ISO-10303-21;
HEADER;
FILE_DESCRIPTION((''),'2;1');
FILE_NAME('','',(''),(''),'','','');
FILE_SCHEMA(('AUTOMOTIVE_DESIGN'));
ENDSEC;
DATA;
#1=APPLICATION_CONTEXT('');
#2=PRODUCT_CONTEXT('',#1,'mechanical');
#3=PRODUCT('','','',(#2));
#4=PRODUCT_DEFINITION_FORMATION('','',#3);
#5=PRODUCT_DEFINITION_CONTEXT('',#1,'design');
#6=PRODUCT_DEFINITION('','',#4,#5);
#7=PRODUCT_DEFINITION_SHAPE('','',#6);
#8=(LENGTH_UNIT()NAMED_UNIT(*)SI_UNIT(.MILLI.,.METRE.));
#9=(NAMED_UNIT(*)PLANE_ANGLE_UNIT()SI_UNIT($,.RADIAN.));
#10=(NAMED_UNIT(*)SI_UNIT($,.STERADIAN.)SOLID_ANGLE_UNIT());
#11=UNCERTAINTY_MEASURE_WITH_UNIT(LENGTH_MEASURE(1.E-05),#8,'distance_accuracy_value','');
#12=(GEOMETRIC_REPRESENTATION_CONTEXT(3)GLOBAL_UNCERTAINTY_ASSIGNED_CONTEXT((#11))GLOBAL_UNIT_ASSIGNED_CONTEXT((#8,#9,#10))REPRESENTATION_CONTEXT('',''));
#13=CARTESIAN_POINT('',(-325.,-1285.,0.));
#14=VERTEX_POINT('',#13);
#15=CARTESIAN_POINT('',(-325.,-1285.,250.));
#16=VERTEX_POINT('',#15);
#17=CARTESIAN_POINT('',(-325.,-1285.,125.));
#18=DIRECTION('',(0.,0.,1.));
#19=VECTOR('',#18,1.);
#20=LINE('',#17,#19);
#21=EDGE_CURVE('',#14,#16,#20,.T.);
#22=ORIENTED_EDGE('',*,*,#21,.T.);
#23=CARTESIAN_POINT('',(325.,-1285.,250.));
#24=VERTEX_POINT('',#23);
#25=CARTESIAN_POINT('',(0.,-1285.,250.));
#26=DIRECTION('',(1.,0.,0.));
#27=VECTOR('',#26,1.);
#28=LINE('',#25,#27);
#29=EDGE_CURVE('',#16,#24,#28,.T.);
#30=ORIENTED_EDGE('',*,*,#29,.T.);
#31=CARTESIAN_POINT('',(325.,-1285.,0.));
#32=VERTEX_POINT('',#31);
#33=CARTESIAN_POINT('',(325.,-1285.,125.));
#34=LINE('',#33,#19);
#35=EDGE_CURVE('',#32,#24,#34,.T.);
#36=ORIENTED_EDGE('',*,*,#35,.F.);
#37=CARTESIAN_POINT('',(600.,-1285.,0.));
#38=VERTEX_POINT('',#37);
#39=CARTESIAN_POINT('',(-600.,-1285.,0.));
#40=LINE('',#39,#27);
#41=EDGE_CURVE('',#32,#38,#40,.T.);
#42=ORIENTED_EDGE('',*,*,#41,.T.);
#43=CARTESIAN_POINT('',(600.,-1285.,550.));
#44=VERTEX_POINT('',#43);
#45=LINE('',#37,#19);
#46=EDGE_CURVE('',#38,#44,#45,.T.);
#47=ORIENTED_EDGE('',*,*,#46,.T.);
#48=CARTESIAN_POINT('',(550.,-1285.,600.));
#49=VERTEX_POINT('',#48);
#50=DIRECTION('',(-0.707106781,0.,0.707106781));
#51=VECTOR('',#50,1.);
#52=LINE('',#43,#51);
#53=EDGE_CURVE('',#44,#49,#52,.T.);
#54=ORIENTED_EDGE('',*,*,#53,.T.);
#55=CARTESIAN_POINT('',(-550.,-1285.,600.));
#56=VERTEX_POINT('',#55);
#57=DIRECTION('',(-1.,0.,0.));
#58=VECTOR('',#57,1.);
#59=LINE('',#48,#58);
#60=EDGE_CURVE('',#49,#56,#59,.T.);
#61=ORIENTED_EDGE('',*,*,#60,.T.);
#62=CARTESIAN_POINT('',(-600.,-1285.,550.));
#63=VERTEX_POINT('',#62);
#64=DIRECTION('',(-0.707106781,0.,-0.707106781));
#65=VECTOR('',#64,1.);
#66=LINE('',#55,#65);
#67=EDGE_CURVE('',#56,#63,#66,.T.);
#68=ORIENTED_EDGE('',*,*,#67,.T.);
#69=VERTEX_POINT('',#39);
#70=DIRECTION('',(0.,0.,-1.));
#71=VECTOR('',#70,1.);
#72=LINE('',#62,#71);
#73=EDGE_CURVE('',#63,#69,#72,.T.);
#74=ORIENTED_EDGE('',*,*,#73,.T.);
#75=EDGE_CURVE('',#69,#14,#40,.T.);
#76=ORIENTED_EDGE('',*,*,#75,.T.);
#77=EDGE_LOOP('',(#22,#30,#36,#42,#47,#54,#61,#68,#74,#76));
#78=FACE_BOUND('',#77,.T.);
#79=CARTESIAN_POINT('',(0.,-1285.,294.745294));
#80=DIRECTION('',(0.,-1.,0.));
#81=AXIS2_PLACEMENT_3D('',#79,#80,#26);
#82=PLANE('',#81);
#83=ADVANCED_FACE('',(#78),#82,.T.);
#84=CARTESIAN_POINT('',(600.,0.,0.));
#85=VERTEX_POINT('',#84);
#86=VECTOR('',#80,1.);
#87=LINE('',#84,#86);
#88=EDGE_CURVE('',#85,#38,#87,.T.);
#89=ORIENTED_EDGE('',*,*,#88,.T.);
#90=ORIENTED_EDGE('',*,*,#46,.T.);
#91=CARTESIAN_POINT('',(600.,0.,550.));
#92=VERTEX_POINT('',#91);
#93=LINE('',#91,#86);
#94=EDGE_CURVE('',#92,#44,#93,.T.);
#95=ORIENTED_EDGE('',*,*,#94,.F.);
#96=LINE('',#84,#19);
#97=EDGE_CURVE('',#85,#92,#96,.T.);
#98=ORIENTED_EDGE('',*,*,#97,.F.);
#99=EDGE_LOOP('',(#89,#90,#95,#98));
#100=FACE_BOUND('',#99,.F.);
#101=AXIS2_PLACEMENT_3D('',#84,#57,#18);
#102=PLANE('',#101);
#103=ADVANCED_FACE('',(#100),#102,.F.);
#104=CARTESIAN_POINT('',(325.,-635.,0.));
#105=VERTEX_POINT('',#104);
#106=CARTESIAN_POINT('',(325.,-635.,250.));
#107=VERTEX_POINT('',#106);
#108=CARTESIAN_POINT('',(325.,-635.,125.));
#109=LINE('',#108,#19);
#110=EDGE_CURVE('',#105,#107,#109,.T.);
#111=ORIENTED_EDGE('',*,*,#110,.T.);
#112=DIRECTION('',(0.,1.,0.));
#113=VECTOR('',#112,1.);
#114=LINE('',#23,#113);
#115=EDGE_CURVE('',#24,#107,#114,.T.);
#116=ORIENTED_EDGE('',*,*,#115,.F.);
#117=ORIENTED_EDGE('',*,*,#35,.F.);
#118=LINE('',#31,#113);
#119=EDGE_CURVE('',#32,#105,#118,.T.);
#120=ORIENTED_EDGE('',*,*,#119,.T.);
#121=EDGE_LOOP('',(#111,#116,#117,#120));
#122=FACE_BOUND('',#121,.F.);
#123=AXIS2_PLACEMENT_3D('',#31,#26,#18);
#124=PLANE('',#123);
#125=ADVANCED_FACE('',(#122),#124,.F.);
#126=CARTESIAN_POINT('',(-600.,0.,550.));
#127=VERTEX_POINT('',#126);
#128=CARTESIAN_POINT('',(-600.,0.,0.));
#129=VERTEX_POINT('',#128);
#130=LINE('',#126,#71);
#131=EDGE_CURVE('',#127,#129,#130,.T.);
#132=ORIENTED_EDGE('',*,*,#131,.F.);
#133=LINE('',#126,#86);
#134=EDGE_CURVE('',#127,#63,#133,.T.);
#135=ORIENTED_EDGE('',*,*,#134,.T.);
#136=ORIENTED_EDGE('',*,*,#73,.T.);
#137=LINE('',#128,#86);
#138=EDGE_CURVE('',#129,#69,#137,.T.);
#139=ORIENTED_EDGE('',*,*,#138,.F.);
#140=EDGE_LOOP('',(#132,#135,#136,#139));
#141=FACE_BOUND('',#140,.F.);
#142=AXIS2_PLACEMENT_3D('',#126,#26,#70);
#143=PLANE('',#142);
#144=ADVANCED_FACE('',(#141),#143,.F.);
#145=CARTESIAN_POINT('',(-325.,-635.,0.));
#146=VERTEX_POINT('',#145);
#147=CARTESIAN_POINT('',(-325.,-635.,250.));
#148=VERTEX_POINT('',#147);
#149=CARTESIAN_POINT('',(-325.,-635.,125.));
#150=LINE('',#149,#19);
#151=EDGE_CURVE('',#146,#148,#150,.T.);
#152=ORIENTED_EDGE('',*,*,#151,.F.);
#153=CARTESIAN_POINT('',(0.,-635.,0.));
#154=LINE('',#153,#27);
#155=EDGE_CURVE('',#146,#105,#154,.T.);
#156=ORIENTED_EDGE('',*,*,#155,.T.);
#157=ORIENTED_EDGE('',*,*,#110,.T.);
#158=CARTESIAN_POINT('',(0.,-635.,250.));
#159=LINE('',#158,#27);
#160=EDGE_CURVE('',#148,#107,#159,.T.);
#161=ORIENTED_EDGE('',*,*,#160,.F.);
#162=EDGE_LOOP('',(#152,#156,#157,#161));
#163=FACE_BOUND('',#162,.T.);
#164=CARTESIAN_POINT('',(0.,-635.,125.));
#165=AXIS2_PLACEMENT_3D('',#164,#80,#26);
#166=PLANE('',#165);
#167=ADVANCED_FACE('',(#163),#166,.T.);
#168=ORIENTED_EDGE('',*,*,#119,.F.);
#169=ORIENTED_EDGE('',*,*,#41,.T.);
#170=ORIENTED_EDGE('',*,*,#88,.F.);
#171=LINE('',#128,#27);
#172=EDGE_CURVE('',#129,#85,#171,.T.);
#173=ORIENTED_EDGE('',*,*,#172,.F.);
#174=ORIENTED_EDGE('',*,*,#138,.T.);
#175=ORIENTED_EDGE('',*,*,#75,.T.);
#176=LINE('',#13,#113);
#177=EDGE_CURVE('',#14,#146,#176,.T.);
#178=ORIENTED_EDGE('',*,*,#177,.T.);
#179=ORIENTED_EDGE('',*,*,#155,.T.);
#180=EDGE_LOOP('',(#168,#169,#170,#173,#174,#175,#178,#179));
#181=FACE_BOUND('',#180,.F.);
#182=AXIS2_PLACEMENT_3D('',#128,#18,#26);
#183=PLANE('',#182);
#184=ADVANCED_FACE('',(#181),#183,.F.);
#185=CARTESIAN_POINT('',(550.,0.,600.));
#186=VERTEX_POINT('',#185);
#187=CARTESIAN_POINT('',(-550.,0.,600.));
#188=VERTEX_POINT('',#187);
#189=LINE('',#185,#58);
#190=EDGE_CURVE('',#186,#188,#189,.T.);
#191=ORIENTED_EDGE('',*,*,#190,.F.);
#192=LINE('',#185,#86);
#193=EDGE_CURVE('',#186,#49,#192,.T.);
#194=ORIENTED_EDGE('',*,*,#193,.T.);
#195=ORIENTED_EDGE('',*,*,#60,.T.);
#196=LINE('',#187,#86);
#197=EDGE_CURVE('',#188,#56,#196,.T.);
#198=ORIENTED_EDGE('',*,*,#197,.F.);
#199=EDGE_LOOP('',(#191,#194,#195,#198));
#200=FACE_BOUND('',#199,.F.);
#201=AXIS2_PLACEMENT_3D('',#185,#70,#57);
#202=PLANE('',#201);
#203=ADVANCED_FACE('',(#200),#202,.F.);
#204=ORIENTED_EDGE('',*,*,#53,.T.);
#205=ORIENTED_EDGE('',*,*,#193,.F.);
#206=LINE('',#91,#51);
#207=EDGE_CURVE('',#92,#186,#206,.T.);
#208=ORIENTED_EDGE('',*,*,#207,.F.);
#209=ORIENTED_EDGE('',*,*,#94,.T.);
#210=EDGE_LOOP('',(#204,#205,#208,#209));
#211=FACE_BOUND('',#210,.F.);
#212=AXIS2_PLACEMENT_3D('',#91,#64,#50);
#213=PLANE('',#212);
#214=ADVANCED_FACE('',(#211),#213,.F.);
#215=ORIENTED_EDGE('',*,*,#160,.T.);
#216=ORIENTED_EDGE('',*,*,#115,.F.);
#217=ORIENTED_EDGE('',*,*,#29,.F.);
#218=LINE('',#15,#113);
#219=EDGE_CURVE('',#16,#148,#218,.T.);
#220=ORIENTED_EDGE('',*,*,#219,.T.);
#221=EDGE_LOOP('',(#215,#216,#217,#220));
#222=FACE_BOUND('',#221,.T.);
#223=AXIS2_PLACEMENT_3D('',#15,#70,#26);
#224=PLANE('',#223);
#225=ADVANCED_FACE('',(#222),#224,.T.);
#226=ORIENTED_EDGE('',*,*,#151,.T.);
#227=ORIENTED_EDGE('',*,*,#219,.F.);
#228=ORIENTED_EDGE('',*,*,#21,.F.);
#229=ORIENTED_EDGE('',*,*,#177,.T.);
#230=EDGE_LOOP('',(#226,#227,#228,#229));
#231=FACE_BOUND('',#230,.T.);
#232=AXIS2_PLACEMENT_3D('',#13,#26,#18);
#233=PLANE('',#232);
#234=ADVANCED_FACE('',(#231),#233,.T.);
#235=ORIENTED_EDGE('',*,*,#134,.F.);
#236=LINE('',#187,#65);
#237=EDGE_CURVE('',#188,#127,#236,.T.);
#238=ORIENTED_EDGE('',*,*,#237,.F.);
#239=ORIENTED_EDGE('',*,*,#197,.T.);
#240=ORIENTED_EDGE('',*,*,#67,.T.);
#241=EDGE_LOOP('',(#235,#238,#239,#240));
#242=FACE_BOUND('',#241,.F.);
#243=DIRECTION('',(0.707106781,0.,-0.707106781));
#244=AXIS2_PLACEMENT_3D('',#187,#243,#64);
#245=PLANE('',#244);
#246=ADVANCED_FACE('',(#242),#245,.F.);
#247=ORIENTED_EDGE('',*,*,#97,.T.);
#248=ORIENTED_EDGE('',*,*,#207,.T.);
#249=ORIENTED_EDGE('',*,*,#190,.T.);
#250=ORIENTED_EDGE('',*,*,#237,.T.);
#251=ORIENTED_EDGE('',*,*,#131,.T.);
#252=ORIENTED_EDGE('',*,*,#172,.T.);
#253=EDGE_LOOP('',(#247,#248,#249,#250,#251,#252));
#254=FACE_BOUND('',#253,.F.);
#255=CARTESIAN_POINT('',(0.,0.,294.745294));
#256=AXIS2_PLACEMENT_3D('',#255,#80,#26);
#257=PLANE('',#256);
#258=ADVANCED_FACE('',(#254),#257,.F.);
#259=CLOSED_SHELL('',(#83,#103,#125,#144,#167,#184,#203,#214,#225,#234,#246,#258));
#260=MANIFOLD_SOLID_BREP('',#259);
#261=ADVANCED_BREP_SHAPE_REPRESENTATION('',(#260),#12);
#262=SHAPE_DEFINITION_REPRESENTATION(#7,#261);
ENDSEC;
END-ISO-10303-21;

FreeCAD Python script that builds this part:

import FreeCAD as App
import Part
import Sketcher
Q = App.Units.Quantity

doc = App.newDocument("Part")
params = doc.addObject("Spreadsheet::Sheet", "Params")
for row, (alias, value) in enumerate([
    ("sketch1_width", "1200 mm"),
    ("sketch1_width2", "1100 mm"),
    ("sketch1_height", "550 mm"),
    ("pad1_length", "1285 mm"),
    ("sketch2_width", "650 mm"),
    ("sketch2_height", "250 mm"),
    ("pocket1_length", "650 mm"),
], start=1):
    params.set(f"A{row}", alias)
    params.set(f"B{row}", "=" + value)
    params.setAlias(f"B{row}", alias)

body = doc.addObject("PartDesign::Body", "Body")

sketch1 = body.newObject("Sketcher::SketchObject", "Sketch")
sketch1.AttachmentSupport = (doc.getObject("XZ_Plane"), [""])
sketch1.MapMode = "FlatFace"
sketch1.addGeometry([
    Part.LineSegment(App.Vector(-600, 0, 0), App.Vector(600, 0, 0)),
    Part.LineSegment(App.Vector(600, 0, 0), App.Vector(600, 550, 0)),
    Part.LineSegment(App.Vector(600, 550, 0), App.Vector(550, 600, 0)),
    Part.LineSegment(App.Vector(550, 600, 0), App.Vector(-550, 600, 0)),
    Part.LineSegment(App.Vector(-550, 600, 0), App.Vector(-600, 550, 0)),
    Part.LineSegment(App.Vector(-600, 550, 0), App.Vector(-600, 0, 0)),
], False)
sketch1.addConstraint([
    Sketcher.Constraint("Coincident", 0, 2, 1, 1),
    Sketcher.Constraint("Coincident", 1, 2, 2, 1),
    Sketcher.Constraint("Coincident", 2, 2, 3, 1),
    Sketcher.Constraint("Coincident", 3, 2, 4, 1),
    Sketcher.Constraint("Coincident", 4, 2, 5, 1),
    Sketcher.Constraint("Coincident", 5, 2, 0, 1),
    Sketcher.Constraint("Horizontal", 0),
    Sketcher.Constraint("Vertical", 1),
    Sketcher.Constraint("Horizontal", 3),
    Sketcher.Constraint("Vertical", 5),
    Sketcher.Constraint("Symmetric", 0, 2, 5, 2, -1, 1),
    Sketcher.Constraint("Perpendicular", 2, 4),
    Sketcher.Constraint("Horizontal", 1, 2, 4, 2),
    Sketcher.Constraint("Equal", 2, 4),
    Sketcher.Constraint("DistanceX", 0, 1, 0, 2, Q("1200 mm")),
    Sketcher.Constraint("DistanceX", 3, 2, 3, 1, Q("1100 mm")),
    Sketcher.Constraint("DistanceY", 1, 1, 1, 2, Q("550 mm")),
])
sketch1.setExpression("Constraints[14]", "Params.sketch1_width")
sketch1.setExpression("Constraints[15]", "Params.sketch1_width2")
sketch1.setExpression("Constraints[16]", "Params.sketch1_height")
pad1 = body.newObject("PartDesign::Pad", "Pad")
pad1.Profile = sketch1
pad1.setExpression("Length", "Params.pad1_length")

sketch2 = body.newObject("Sketcher::SketchObject", "Sketch001")
sketch2.AttachmentSupport = (doc.getObject("XZ_Plane"), [""])
sketch2.MapMode = "FlatFace"
sketch2.AttachmentOffset = App.Placement(App.Vector(0, 0, 1285), App.Rotation())
sketch2.addGeometry([
    Part.LineSegment(App.Vector(-325, 250, 0), App.Vector(-325, 0, 0)),
    Part.LineSegment(App.Vector(-325, 0, 0), App.Vector(325, 0, 0)),
    Part.LineSegment(App.Vector(325, 0, 0), App.Vector(325, 250, 0)),
    Part.LineSegment(App.Vector(325, 250, 0), App.Vector(-325, 250, 0)),
], False)
sketch2.addConstraint([
    Sketcher.Constraint("Coincident", 0, 2, 1, 1),
    Sketcher.Constraint("Coincident", 1, 2, 2, 1),
    Sketcher.Constraint("Coincident", 2, 2, 3, 1),
    Sketcher.Constraint("Coincident", 3, 2, 0, 1),
    Sketcher.Constraint("Vertical", 0),
    Sketcher.Constraint("Horizontal", 1),
    Sketcher.Constraint("Vertical", 2),
    Sketcher.Constraint("Horizontal", 3),
    Sketcher.Constraint("Symmetric", 0, 2, 1, 2, -1, 1),
    Sketcher.Constraint("DistanceX", 1, 1, 1, 2, Q("650 mm")),
    Sketcher.Constraint("DistanceY", 0, 2, 0, 1, Q("250 mm")),
])
sketch2.setExpression("Constraints[9]", "Params.sketch2_width")
sketch2.setExpression("Constraints[10]", "Params.sketch2_height")
pocket1 = body.newObject("PartDesign::Pocket", "Pocket")
pocket1.Profile = sketch2
pocket1.setExpression("Length", "Params.pocket1_length")

doc.recompute()
